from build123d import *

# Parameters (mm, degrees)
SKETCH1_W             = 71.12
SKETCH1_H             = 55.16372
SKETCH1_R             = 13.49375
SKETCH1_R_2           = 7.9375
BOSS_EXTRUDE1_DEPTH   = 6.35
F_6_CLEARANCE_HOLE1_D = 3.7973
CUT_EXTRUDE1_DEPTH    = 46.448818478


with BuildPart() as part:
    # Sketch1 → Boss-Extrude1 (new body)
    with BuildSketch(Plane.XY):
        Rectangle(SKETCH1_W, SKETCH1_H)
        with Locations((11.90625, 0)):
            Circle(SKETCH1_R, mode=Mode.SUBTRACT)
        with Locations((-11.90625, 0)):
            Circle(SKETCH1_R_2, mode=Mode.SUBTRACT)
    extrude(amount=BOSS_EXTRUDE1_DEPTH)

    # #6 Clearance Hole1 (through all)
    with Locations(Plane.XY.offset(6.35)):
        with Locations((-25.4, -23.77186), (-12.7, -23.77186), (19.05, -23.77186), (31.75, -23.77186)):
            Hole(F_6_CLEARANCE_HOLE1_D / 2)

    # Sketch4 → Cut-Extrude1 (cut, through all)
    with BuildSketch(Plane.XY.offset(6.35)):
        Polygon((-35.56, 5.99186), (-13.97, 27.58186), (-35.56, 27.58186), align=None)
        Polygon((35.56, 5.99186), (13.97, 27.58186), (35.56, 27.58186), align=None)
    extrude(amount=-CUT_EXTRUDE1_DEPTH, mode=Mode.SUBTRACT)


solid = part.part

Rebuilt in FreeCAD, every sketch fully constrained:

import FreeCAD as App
import Part
import Sketcher
from FreeCAD import Vector
Q = App.Units.Quantity


def add_polygon(sketch, points):
    """Adds a closed chain of lines whose ends are joined by coincident constraints."""
    first, n = sketch.GeometryCount, len(points)
    for a, b in zip(points, points[1:] + points[:1]):
        sketch.addGeometry(Part.LineSegment(App.Vector(*a, 0), App.Vector(*b, 0)), False)
    for i in range(n):
        sketch.addConstraint(Sketcher.Constraint("Coincident", first + i, 2, first + (i + 1) % n, 1))

doc = App.newDocument("Part")
body = doc.addObject("PartDesign::Body", "Body")

# Sketch on XY plane
sketch1 = body.newObject("Sketcher::SketchObject", "Sketch")
sketch1.AttachmentSupport = (doc.getObject("XY_Plane"), [""])
sketch1.MapMode = "FlatFace"
add_polygon(sketch1, [(-35.56, 27.58186), (-35.56, -27.58186), (35.56, -27.58186), (35.56, 27.58186)])  # lines 0-3
sketch1.addGeometry(Part.Circle(Vector(-11.90625, 0, 0), Vector(0, 0, 1), 7.9375), False)  # 4
sketch1.addGeometry(Part.Circle(Vector(11.90625, 0, 0), Vector(0, 0, 1), 13.49375), False)  # 5
sketch1.addConstraint([
    Sketcher.Constraint("Vertical", 0),
    Sketcher.Constraint("Horizontal", 1),
    Sketcher.Constraint("Vertical", 2),
    Sketcher.Constraint("Horizontal", 3),
    Sketcher.Constraint("Symmetric", 4, 3, 5, 3, -1, 1),
    Sketcher.Constraint("Symmetric", 0, 2, 2, 2, -1, 1),
    Sketcher.Constraint("PointOnObject", 4, 3, -1),
    Sketcher.Constraint("Diameter", 4, Q("0.625 in")),
    Sketcher.Constraint("Diameter", 5, Q("1.0625 in")),
    Sketcher.Constraint("DistanceX", 1, 1, 1, 2, Q("2.8 in")),
    Sketcher.Constraint("DistanceY", 0, 2, 0, 1, Q("2.1718 in")),
    Sketcher.Constraint("DistanceX", 4, 3, -1, 1, Q("0.46875 in")),
])
pad1 = body.newObject("PartDesign::Pad", "Pad")
pad1.Profile = sketch1
pad1.Length = Q("0.25 in")

# Sketch on XY plane
sketch2 = body.newObject("Sketcher::SketchObject", "Sketch001")
sketch2.AttachmentSupport = (doc.getObject("XY_Plane"), [""])
sketch2.MapMode = "FlatFace"
sketch2.AttachmentOffset = App.Placement(Vector(0, 0, 0.25 * 25.4), App.Rotation())
sketch2.addGeometry([
    Part.Circle(Vector(-25.4, -23.77186, 0), Vector(0, 0, 1), 1.89865),
    Part.Circle(Vector(-12.7, -23.77186, 0), Vector(0, 0, 1), 1.89865),
    Part.Circle(Vector(19.05, -23.77186, 0), Vector(0, 0, 1), 1.89865),
    Part.Circle(Vector(31.75, -23.77186, 0), Vector(0, 0, 1), 1.89865),
], False)
sketch2.addConstraint([
    Sketcher.Constraint("Equal", 0, 1),
    Sketcher.Constraint("Equal", 1, 2),
    Sketcher.Constraint("Equal", 2, 3),
    Sketcher.Constraint("Horizontal", 0, 3, 1, 3),
    Sketcher.Constraint("Horizontal", 1, 3, 2, 3),
    Sketcher.Constraint("Horizontal", 2, 3, 3, 3),
    Sketcher.Constraint("DistanceX", 0, 3, -1, 1, Q("1 in")),
    Sketcher.Constraint("Diameter", 0, Q("0.1495 in")),
    Sketcher.Constraint("DistanceX", 1, 3, -1, 1, Q("0.5 in")),
    Sketcher.Constraint("DistanceX", 2, 3, 3, 3, Q("0.5 in")),
    Sketcher.Constraint("DistanceX", -1, 1, 2, 3, Q("0.75 in")),
    Sketcher.Constraint("DistanceY", 0, 3, -1, 1, Q("0.9359 in")),
])
doc.recompute()
hole = body.newObject("PartDesign::Hole", "Hole")
hole.Profile = sketch2
hole.ThreadType = "None"
hole.Diameter = Q("0.1495 in")
hole.DepthType = "ThroughAll"

# Sketch on XY plane
sketch3 = body.newObject("Sketcher::SketchObject", "Sketch002")
sketch3.AttachmentSupport = (doc.getObject("XY_Plane"), [""])
sketch3.MapMode = "FlatFace"
sketch3.AttachmentOffset = App.Placement(Vector(0, 0, 0.25 * 25.4), App.Rotation())
add_polygon(sketch3, [(-35.56, 5.99186), (-13.97, 27.58186), (-35.56, 27.58186)])  # lines 0-2
add_polygon(sketch3, [(13.97, 27.58186), (35.56, 5.99186), (35.56, 27.58186)])  # lines 3-5
sketch3.addConstraint([
    Sketcher.Constraint("Horizontal", 1),
    Sketcher.Constraint("Vertical", 2),
    Sketcher.Constraint("Vertical", 4),
    Sketcher.Constraint("Horizontal", 5),
    Sketcher.Constraint("Symmetric", 2, 2, 3, 2, -2),
    Sketcher.Constraint("Symmetric", 0, 2, 5, 2, -2),
    Sketcher.Constraint("Perpendicular", 0, 3),
    Sketcher.Constraint("DistanceX", 1, 2, 1, 1, Q("0.85 in")),
    Sketcher.Constraint("DistanceX", 1, 2, -1, 1, Q("1.4 in")),
    Sketcher.Constraint("DistanceY", -1, 1, 0, 2, Q("1.0859 in")),
])
pocket1 = body.newObject("PartDesign::Pocket", "Pocket")
pocket1.Profile = sketch3
pocket1.Type = "ThroughAll"

doc.recompute()
